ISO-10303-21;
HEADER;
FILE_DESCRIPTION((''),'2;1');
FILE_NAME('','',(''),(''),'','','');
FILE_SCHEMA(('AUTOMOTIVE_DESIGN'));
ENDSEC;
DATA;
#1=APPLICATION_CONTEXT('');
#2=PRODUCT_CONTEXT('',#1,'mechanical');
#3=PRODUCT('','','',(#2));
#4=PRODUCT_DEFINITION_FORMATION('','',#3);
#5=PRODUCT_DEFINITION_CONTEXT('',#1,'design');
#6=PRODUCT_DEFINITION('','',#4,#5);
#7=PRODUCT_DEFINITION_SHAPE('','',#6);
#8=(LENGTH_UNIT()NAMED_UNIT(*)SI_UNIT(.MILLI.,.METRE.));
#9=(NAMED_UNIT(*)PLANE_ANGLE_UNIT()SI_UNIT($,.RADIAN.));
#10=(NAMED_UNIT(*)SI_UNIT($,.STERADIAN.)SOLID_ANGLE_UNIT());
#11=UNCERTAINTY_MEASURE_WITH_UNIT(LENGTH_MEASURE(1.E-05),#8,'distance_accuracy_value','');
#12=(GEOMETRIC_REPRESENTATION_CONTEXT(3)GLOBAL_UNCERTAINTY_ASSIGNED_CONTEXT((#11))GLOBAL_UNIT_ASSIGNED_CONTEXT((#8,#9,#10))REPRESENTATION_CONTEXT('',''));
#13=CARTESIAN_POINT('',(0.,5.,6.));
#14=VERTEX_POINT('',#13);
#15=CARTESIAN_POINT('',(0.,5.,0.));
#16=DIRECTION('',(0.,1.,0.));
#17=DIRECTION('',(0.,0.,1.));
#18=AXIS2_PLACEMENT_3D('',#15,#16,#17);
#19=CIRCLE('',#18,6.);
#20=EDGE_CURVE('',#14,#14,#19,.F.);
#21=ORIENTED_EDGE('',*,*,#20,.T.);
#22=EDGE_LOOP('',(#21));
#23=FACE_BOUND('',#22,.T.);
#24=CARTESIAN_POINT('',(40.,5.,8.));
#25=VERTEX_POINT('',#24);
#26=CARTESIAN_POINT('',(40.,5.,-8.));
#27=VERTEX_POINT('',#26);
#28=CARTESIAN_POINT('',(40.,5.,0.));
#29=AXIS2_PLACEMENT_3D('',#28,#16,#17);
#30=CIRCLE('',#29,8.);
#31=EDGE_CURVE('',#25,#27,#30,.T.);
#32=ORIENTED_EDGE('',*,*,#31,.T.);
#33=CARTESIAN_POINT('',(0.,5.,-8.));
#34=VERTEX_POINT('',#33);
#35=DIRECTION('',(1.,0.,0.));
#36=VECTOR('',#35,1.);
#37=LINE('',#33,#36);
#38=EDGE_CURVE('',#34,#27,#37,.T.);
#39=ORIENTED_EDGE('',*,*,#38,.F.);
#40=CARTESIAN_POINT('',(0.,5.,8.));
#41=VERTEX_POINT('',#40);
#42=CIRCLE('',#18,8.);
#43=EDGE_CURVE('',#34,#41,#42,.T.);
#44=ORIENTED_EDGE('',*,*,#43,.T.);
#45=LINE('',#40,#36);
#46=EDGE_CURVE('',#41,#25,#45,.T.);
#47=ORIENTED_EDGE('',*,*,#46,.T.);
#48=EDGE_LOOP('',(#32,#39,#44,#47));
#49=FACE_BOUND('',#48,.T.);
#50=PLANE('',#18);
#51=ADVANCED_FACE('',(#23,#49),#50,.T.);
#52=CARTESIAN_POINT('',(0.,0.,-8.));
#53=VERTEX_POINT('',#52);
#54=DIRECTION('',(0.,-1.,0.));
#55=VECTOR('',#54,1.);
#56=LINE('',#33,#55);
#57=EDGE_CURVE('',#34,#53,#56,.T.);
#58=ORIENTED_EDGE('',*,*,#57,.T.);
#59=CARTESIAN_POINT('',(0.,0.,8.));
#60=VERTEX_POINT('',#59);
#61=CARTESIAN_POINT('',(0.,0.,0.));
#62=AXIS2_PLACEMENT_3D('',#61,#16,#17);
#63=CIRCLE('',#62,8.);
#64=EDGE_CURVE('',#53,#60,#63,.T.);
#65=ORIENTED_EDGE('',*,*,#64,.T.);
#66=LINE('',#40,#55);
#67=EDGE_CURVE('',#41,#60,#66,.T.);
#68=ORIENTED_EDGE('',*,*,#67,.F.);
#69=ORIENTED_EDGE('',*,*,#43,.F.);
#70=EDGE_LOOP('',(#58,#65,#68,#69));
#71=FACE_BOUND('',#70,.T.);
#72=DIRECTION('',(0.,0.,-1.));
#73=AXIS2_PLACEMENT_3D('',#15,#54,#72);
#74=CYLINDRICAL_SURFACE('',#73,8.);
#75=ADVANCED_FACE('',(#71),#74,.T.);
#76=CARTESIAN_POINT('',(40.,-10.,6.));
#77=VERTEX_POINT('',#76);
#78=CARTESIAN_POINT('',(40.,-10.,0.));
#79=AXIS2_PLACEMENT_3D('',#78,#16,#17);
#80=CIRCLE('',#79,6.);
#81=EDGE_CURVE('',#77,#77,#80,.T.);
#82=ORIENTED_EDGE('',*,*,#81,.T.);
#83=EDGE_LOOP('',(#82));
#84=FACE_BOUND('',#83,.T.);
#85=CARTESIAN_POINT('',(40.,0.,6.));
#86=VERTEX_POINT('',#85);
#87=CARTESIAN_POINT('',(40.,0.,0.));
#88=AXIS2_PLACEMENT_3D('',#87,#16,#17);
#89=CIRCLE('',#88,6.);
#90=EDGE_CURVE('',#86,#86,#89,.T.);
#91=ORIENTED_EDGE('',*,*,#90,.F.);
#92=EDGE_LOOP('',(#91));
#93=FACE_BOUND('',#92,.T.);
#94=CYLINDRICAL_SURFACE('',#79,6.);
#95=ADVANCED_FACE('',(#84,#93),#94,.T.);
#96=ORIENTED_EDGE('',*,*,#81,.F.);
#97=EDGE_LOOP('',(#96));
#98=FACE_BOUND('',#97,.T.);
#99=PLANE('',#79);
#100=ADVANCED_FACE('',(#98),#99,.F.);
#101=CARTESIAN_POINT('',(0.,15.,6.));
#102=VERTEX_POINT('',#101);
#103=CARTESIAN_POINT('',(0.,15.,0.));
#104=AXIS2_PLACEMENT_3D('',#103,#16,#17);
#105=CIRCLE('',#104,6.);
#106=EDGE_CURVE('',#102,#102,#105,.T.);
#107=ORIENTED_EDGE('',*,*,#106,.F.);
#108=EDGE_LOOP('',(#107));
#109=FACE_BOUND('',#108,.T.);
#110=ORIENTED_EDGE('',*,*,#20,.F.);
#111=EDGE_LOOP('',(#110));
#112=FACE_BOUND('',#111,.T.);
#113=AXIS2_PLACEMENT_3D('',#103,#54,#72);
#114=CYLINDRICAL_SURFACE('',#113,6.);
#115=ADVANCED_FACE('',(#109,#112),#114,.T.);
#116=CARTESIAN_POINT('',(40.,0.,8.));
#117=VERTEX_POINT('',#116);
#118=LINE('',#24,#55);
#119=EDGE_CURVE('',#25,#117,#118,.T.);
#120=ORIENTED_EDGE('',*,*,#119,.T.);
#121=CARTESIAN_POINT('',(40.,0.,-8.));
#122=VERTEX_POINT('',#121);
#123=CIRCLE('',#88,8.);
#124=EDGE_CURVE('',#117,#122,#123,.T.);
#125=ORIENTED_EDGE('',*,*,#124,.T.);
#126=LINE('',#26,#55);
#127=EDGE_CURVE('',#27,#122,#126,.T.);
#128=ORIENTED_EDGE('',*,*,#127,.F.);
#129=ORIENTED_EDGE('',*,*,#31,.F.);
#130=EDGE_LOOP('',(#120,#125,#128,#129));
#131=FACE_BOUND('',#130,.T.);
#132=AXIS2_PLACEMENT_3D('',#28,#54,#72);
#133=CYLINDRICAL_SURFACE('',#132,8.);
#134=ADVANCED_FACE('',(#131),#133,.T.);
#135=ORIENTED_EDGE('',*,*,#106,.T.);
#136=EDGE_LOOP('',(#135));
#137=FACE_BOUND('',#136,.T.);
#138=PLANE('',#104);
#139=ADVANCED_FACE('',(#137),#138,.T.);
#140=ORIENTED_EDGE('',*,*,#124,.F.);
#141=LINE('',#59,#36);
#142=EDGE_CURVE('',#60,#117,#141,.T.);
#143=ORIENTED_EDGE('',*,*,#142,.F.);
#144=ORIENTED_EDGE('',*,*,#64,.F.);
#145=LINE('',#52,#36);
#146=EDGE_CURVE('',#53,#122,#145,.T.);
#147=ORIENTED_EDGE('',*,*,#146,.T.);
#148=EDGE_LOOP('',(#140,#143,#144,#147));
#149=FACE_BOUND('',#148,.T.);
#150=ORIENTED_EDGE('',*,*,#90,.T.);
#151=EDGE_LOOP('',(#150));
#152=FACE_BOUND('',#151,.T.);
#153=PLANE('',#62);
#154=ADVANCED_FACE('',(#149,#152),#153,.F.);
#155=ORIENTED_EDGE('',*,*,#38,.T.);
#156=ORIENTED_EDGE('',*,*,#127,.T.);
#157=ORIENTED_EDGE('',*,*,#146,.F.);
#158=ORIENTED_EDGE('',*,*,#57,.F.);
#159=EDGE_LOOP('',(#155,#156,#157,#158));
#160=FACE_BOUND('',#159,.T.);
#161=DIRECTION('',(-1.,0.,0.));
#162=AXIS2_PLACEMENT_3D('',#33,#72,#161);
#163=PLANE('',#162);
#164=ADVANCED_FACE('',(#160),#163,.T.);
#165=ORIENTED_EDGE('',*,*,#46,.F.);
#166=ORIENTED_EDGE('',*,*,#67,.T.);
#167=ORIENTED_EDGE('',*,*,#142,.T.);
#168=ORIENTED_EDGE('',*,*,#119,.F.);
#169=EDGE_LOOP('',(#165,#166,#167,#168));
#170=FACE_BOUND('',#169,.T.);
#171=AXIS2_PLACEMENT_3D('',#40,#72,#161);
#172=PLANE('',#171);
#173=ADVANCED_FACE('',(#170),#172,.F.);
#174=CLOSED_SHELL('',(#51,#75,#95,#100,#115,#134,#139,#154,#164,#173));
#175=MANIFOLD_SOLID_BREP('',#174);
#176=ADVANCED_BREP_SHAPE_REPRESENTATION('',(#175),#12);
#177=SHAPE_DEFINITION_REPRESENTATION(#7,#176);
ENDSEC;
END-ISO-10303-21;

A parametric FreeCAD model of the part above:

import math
import FreeCAD as App
import Part
import Sketcher

doc = App.newDocument("Part")
body = doc.addObject("PartDesign::Body", "Body")

sketch1 = body.newObject("Sketcher::SketchObject", "Sketch")
sketch1.AttachmentSupport = (doc.getObject("XZ_Plane"), [""])
sketch1.MapMode = "FlatFace"
sketch1.addGeometry([
    Part.LineSegment(App.Vector(40, -8, 0), App.Vector(0, -8, 0)),
    Part.ArcOfCircle(Part.Circle(App.Vector(0, 0, 0), App.Vector(0, 0, 1), 8), math.radians(90), math.radians(270)),
    Part.LineSegment(App.Vector(0, 8, 0), App.Vector(40, 8, 0)),
    Part.ArcOfCircle(Part.Circle(App.Vector(40, 0, 0), App.Vector(0, 0, 1), 8), math.radians(-90), math.radians(90)),
], False)
sketch1.addConstraint([
    Sketcher.Constraint("Tangent", 0, 2, 1, 2),
    Sketcher.Constraint("Tangent", 1, 1, 2, 1),
    Sketcher.Constraint("Tangent", 2, 2, 3, 2),
    Sketcher.Constraint("Tangent", 3, 1, 0, 1),
    Sketcher.Constraint("Horizontal", 0),
    Sketcher.Constraint("Horizontal", 2),
    Sketcher.Constraint("Coincident", 1, 3, -1, 1),
    Sketcher.Constraint("Radius", 1, 8.0),
    Sketcher.Constraint("DistanceX", 0, 2, 0, 1, 40.0),
])
pad1 = body.newObject("PartDesign::Pad", "Pad")
pad1.Profile = sketch1
pad1.Length = 5
pad1.Reversed = True

sketch2 = body.newObject("Sketcher::SketchObject", "Sketch001")
sketch2.AttachmentSupport = (doc.getObject("XZ_Plane"), [""])
sketch2.MapMode = "FlatFace"
sketch2.addGeometry(Part.Circle(App.Vector(0, 0, 0), App.Vector(0, 0, 1), 6), False)
sketch2.addConstraint([
    Sketcher.Constraint("Coincident", 0, 3, -1, 1),
    Sketcher.Constraint("Diameter", 0, 12.0),
])
pad2 = body.newObject("PartDesign::Pad", "Pad001")
pad2.Profile = sketch2
pad2.Length = 15
pad2.Reversed = True

sketch3 = body.newObject("Sketcher::SketchObject", "Sketch002")
sketch3.AttachmentSupport = (doc.getObject("XZ_Plane"), [""])
sketch3.MapMode = "FlatFace"
sketch3.addGeometry(Part.Circle(App.Vector(40, 0, 0), App.Vector(0, 0, 1), 6), False)
sketch3.addConstraint([
    Sketcher.Constraint("PointOnObject", 0, 3, -1),
    Sketcher.Constraint("Diameter", 0, 12.0),
    Sketcher.Constraint("DistanceX", -1, 1, 0, 3, 40.0),
])
pad3 = body.newObject("PartDesign::Pad", "Pad002")
pad3.Profile = sketch3
pad3.Length = 10

doc.recompute()
